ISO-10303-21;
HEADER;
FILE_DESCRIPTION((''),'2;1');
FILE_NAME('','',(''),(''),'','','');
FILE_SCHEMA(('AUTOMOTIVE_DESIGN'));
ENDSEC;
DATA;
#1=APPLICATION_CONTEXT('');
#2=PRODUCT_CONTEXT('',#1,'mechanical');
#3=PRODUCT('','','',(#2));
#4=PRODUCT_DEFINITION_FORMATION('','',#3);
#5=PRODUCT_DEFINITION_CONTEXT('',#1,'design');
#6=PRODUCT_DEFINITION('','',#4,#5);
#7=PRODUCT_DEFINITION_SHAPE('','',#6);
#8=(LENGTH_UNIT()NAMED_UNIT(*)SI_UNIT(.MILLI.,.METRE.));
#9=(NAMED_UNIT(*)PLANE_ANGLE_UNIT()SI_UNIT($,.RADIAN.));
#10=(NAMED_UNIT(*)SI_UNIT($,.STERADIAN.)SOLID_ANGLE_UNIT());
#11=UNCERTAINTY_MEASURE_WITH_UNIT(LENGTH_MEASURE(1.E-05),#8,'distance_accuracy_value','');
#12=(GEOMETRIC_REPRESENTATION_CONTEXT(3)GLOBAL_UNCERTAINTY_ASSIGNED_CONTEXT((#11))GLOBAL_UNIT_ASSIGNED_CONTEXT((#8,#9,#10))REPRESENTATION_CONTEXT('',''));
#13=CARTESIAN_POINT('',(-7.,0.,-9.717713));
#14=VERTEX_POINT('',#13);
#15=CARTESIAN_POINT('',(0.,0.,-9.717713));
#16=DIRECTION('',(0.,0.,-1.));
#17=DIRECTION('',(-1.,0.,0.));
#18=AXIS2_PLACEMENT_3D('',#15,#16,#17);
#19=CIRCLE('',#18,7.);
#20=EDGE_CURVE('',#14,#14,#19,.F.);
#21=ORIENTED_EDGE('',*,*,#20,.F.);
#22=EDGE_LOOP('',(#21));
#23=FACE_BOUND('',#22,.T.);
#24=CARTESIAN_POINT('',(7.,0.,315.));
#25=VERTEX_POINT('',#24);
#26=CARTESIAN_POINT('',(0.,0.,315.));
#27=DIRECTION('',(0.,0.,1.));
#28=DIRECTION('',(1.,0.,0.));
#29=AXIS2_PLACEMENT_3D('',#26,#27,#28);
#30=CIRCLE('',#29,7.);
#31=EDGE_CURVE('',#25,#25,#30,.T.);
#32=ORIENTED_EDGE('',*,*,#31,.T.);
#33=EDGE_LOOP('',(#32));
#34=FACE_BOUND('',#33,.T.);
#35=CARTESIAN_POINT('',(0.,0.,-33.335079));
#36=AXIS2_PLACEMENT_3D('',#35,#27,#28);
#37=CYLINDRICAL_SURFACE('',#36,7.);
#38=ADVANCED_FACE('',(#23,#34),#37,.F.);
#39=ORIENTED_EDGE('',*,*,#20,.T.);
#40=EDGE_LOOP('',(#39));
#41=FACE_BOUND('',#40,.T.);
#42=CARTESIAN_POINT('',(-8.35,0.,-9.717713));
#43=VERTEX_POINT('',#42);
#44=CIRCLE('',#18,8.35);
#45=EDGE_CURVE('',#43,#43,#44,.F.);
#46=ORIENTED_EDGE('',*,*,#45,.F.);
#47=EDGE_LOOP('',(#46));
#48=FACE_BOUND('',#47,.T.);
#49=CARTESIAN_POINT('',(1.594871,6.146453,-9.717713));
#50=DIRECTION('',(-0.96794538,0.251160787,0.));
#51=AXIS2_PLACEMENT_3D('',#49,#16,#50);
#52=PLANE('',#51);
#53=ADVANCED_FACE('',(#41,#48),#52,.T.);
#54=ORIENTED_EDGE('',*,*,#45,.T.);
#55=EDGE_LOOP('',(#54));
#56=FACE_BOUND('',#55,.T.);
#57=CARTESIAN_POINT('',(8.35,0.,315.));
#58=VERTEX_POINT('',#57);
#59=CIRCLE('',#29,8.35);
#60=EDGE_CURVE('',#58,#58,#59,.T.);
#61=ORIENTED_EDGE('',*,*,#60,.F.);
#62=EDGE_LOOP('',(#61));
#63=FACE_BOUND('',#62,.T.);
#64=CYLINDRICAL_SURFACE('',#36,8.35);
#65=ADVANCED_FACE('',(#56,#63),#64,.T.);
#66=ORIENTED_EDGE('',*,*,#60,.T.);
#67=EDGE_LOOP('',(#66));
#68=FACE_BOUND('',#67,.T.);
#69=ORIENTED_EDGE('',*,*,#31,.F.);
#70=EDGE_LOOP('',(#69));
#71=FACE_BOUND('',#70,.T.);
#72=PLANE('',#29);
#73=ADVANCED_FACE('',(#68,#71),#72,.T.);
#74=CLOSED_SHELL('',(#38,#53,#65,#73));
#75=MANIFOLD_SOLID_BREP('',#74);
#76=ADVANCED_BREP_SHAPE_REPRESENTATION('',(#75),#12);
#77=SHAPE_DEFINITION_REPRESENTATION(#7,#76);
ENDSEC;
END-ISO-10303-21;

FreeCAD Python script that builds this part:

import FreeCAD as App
import Part
import Sketcher
from FreeCAD import Vector
Q = App.Units.Quantity

doc = App.newDocument("Part")
body = doc.addObject("PartDesign::Body", "Body")

# Sketch on XY plane
sketch1 = doc.addObject("Sketcher::SketchObject", "Sketch")
body.addObject(sketch1)
sketch1.AttachmentSupport = (doc.XY_Plane, [""])
sketch1.MapMode = "FlatFace"
sketch1.addGeometry([
    Part.Circle(Vector(0, 0, 0), Vector(0, 0, 1), 8),
    Part.Circle(Vector(0, 0, 0), Vector(0, 0, 1), 7),
], False)
sketch1.addConstraint([
    Sketcher.Constraint("Coincident", 0, 3, -1, 1),
    Sketcher.Constraint("Coincident", 1, 3, -1, 1),
    Sketcher.Constraint("Diameter", 1, Q("14 mm")),
    Sketcher.Constraint("Diameter", 0, Q("16.7 mm")),
])
pad1 = doc.addObject("PartDesign::Pad", "Pad")
body.addObject(pad1)
pad1.Profile = sketch1
pad1.Type = "TwoLengths"
pad1.Length = 315
pad1.Length2 = 9.717713

doc.recompute()
